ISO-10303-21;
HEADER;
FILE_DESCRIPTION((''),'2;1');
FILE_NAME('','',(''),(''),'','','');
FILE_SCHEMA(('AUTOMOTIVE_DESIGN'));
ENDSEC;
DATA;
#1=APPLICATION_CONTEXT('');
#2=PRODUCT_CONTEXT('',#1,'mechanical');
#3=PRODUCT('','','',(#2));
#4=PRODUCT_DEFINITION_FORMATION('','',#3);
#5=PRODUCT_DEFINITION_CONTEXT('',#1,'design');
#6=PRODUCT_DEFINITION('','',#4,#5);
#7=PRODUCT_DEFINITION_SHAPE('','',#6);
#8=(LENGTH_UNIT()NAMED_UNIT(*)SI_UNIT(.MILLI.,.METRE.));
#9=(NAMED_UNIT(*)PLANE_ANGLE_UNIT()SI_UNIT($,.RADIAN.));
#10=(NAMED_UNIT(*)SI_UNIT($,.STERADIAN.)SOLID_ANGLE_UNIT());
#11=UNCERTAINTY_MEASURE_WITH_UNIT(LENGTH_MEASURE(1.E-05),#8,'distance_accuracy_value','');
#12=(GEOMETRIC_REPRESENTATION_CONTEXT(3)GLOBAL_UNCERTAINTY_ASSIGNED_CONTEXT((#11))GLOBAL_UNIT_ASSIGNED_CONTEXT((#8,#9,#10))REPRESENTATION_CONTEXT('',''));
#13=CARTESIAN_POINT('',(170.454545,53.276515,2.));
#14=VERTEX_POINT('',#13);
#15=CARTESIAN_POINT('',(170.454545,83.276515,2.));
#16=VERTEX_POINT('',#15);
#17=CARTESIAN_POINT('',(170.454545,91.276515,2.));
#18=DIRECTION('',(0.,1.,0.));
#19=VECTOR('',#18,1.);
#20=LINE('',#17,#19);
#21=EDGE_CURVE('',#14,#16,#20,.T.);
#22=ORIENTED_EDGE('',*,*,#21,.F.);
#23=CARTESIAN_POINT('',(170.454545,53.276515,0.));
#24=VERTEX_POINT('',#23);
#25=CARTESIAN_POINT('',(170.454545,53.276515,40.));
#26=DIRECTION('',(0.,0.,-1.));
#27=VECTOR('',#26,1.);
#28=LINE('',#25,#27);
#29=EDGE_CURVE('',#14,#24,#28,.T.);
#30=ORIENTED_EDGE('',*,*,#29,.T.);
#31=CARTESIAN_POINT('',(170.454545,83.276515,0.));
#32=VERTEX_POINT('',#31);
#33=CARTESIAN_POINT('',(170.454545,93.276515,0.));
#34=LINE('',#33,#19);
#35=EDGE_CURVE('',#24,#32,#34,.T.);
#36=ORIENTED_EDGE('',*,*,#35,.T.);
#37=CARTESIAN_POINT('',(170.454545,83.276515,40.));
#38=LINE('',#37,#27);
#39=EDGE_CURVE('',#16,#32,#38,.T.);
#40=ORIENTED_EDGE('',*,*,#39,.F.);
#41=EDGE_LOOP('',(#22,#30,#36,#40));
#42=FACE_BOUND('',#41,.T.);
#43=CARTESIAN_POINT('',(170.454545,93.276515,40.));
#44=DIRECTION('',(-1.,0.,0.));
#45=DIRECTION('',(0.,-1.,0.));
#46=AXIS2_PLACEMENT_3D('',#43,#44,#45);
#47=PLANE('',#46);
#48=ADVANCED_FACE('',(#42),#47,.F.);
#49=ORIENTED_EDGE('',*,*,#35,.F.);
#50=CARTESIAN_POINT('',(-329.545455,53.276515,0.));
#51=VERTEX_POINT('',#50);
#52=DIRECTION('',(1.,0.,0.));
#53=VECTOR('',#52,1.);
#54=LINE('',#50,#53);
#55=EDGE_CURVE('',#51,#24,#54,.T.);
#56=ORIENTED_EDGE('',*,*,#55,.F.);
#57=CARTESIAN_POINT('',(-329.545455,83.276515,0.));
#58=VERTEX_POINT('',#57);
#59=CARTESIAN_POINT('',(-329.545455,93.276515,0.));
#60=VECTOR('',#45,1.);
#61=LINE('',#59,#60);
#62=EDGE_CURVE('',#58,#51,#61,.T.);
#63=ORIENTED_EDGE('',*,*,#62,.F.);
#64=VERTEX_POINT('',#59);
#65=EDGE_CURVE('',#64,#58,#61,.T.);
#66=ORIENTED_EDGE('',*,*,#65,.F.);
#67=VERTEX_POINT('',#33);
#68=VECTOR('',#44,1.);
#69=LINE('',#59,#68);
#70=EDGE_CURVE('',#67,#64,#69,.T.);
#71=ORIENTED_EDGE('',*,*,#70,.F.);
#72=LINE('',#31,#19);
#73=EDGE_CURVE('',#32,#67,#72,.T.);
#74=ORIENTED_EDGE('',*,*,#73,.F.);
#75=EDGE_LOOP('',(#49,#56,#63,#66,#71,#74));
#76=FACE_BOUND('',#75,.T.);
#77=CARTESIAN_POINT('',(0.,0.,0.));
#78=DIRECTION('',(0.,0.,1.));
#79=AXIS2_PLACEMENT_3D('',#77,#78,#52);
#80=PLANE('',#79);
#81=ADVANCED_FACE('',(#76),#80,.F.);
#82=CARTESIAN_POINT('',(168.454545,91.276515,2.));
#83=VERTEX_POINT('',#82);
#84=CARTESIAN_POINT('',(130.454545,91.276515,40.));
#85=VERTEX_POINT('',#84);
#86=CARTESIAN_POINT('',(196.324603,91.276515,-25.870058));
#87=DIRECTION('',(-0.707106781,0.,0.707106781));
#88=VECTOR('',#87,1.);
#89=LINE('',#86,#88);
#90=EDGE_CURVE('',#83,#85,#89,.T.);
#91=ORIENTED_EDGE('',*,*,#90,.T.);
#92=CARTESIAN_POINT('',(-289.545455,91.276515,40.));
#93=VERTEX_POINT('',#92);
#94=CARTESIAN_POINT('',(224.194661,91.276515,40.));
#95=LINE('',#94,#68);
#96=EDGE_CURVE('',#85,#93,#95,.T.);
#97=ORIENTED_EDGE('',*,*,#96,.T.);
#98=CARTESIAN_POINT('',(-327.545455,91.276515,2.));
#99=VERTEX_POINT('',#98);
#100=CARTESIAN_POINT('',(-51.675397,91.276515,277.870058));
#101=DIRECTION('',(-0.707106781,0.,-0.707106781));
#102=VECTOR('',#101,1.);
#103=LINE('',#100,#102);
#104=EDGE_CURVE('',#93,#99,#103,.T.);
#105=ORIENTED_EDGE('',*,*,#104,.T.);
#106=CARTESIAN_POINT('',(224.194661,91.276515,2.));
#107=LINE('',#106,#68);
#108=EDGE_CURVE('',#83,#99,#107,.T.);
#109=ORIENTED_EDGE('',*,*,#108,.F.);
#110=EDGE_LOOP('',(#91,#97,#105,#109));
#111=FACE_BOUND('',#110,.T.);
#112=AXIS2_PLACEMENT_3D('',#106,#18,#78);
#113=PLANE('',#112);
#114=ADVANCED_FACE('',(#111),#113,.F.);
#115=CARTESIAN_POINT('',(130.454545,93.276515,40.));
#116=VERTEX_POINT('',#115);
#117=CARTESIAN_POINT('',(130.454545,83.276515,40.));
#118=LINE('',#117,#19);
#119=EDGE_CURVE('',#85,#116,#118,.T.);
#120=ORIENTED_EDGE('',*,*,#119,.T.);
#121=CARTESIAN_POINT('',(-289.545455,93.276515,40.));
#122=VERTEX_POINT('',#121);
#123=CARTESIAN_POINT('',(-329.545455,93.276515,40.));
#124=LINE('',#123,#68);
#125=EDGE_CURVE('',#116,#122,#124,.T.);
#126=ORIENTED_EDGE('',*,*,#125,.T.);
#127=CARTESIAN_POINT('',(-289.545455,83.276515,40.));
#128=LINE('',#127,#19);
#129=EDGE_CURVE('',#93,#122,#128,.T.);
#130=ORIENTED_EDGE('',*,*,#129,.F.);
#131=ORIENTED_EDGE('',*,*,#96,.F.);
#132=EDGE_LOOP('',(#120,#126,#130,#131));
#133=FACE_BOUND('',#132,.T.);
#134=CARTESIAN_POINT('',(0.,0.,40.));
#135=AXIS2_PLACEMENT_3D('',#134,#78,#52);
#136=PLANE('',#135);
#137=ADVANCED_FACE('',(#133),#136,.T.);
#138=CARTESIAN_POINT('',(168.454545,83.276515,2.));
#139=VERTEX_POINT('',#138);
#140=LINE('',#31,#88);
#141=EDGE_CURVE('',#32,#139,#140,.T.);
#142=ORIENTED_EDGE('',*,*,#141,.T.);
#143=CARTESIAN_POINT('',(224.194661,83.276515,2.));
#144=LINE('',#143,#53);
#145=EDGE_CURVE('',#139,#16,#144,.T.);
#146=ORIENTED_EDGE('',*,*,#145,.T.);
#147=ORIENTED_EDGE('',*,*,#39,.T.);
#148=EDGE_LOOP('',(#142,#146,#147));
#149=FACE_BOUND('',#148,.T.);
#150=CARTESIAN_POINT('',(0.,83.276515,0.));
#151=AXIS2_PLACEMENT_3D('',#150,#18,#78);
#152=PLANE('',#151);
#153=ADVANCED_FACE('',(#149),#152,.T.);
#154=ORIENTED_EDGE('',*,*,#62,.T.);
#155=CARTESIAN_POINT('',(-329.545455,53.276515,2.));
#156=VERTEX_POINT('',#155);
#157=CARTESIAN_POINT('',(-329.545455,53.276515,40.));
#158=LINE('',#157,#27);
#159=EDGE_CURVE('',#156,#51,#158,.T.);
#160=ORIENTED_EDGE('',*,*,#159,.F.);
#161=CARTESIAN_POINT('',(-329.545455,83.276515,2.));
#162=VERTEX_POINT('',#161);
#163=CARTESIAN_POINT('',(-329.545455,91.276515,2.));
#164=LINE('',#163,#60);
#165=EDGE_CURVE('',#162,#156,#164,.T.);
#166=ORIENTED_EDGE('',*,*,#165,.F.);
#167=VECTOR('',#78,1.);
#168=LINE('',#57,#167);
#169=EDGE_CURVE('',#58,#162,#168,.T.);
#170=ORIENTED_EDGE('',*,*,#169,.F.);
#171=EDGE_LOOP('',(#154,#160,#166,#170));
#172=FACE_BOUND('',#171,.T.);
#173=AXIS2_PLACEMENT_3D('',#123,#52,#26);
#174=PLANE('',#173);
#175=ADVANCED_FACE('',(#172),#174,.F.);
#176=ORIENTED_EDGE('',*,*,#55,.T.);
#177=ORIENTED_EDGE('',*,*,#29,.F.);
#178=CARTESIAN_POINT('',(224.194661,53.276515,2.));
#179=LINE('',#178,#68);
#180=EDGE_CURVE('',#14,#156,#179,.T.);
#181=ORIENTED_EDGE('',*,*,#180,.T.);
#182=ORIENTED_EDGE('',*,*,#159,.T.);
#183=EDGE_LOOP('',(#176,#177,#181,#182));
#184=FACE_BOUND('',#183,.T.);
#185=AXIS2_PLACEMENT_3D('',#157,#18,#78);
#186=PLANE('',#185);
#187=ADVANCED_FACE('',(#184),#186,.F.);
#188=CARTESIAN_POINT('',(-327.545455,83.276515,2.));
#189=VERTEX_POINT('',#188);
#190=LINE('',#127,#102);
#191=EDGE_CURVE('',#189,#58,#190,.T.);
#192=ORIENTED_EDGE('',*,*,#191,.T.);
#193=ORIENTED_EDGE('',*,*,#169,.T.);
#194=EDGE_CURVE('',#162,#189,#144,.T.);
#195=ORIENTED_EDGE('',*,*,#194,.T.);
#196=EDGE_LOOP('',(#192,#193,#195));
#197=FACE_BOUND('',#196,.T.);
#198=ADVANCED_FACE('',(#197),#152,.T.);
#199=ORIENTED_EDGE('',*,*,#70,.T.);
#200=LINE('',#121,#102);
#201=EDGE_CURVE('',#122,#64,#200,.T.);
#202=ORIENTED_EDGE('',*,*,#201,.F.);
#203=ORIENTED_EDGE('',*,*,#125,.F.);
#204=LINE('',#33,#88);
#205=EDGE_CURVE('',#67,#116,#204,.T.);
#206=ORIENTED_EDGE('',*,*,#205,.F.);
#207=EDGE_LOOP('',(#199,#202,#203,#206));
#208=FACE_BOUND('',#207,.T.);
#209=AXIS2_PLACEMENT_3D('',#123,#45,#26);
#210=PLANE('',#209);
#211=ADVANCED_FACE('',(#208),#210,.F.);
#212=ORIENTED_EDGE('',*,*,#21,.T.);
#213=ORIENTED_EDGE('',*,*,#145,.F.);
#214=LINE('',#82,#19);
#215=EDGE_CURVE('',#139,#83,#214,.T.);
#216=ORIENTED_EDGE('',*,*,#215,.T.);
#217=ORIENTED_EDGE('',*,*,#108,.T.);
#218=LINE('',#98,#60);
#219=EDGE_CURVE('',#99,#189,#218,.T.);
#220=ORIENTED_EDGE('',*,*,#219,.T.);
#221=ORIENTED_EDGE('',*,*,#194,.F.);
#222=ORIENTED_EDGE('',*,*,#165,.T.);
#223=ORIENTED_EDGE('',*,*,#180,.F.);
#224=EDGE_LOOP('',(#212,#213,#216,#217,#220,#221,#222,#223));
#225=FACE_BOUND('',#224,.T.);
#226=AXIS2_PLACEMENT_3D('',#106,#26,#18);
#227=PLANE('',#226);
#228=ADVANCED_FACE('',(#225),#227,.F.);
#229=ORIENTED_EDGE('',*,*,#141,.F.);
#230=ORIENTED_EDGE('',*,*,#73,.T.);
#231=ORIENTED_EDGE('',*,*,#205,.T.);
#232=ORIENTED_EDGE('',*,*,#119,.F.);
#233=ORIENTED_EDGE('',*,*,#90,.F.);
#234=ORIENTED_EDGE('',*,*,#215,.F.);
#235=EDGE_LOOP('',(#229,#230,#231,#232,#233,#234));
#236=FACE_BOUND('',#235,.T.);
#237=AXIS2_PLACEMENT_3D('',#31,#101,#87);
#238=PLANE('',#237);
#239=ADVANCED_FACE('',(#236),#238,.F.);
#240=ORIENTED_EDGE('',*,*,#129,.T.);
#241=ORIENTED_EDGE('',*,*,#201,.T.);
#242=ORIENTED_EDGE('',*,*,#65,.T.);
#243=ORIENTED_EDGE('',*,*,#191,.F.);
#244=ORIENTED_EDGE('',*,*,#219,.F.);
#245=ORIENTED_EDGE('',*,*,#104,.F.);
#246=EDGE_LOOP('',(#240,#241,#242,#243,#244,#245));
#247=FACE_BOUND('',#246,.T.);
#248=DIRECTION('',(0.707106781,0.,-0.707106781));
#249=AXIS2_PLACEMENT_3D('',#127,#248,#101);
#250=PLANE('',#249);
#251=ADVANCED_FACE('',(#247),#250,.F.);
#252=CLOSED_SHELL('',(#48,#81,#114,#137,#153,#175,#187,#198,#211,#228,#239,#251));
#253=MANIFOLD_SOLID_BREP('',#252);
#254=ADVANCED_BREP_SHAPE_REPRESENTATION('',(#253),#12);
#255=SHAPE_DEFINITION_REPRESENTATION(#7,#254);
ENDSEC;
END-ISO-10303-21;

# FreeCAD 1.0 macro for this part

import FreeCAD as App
import Part
import Sketcher
Q = App.Units.Quantity

doc = App.newDocument("Part")
body = doc.addObject("PartDesign::Body", "Body")

# Sketch on XY plane
sketch1 = body.newObject("Sketcher::SketchObject", "Sketch")
sketch1.AttachmentSupport = (doc.getObject("XY_Plane"), [""])
sketch1.MapMode = "FlatFace"
sketch1.addGeometry([
    Part.LineSegment(App.Vector(-330, 93, 0), App.Vector(-330, 53, 0)),
    Part.LineSegment(App.Vector(-330, 53, 0), App.Vector(170, 53, 0)),
    Part.LineSegment(App.Vector(170, 53, 0), App.Vector(170, 93, 0)),
    Part.LineSegment(App.Vector(170, 93, 0), App.Vector(-330, 93, 0)),
], False)
sketch1.addConstraint([
    Sketcher.Constraint("Coincident", 0, 2, 1, 1),
    Sketcher.Constraint("Coincident", 1, 2, 2, 1),
    Sketcher.Constraint("Coincident", 2, 2, 3, 1),
    Sketcher.Constraint("Coincident", 3, 2, 0, 1),
    Sketcher.Constraint("Vertical", 0),
    Sketcher.Constraint("Horizontal", 1),
    Sketcher.Constraint("Vertical", 2),
    Sketcher.Constraint("Horizontal", 3),
    Sketcher.Constraint("DistanceX", 1, 1, 1, 2, Q("500 mm")),
    Sketcher.Constraint("DistanceY", 0, 2, 0, 1, Q("40 mm")),
    Sketcher.Constraint("DistanceX", 0, 2, -1, 1, Q("329.545455 mm")),
    Sketcher.Constraint("DistanceY", -1, 1, 0, 2, Q("53.276515 mm")),
])
pad1 = body.newObject("PartDesign::Pad", "Pad")
pad1.Profile = sketch1
pad1.Length = 40

# Sketch on YZ plane
sketch2 = body.newObject("Sketcher::SketchObject", "Sketch001")
sketch2.AttachmentSupport = (doc.getObject("YZ_Plane"), [""])
sketch2.MapMode = "FlatFace"
sketch2.AttachmentOffset = App.Placement(App.Vector(0, 0, -329.545455), App.Rotation())
sketch2.addGeometry([
    Part.LineSegment(App.Vector(91, 2, 0), App.Vector(53, 2, 0)),
    Part.LineSegment(App.Vector(53, 2, 0), App.Vector(53, 40, 0)),
    Part.LineSegment(App.Vector(53, 40, 0), App.Vector(91, 40, 0)),
    Part.LineSegment(App.Vector(91, 40, 0), App.Vector(91, 2, 0)),
], False)
sketch2.addConstraint([
    Sketcher.Constraint("Coincident", 0, 2, 1, 1),
    Sketcher.Constraint("Coincident", 1, 2, 2, 1),
    Sketcher.Constraint("Coincident", 2, 2, 3, 1),
    Sketcher.Constraint("Coincident", 3, 2, 0, 1),
    Sketcher.Constraint("Horizontal", 0),
    Sketcher.Constraint("Vertical", 1),
    Sketcher.Constraint("Horizontal", 2),
    Sketcher.Constraint("Vertical", 3),
    Sketcher.Constraint("Equal", 2, 1),
    Sketcher.Constraint("DistanceX", 0, 2, 0, 1, Q("38 mm")),
    Sketcher.Constraint("DistanceY", -1, 1, 0, 2, Q("2 mm")),
    Sketcher.Constraint("DistanceX", -1, 1, 0, 2, Q("53.276515 mm")),
])
pocket1 = body.newObject("PartDesign::Pocket", "Pocket")
pocket1.Profile = sketch2
pocket1.Length = 500
pocket1.Reversed = True

# Sketch on XZ plane
sketch3 = body.newObject("Sketcher::SketchObject", "Sketch002")
sketch3.AttachmentSupport = (doc.getObject("XZ_Plane"), [""])
sketch3.MapMode = "FlatFace"
sketch3.AttachmentOffset = App.Placement(App.Vector(0, 0, -93.276515), App.Rotation())
sketch3.addGeometry([
    Part.LineSegment(App.Vector(-330, 0, 0), App.Vector(-330, 40, 0)),  # 0
    Part.LineSegment(App.Vector(-330, 40, 0), App.Vector(-290, 40, 0)),  # 1
    Part.LineSegment(App.Vector(-290, 40, 0), App.Vector(-330, 0, 0)),  # 2
    Part.LineSegment(App.Vector(170, 40, 0), App.Vector(170, 0, 0)),  # 3
    Part.LineSegment(App.Vector(170, 0, 0), App.Vector(130, 40, 0)),  # 4
    Part.LineSegment(App.Vector(130, 40, 0), App.Vector(170, 40, 0)),  # 5
], False)
sketch3.addConstraint([
    Sketcher.Constraint("Coincident", 0, 2, 1, 1),
    Sketcher.Constraint("Coincident", 1, 2, 2, 1),
    Sketcher.Constraint("Coincident", 2, 2, 0, 1),
    Sketcher.Constraint("Coincident", 3, 2, 4, 1),
    Sketcher.Constraint("Coincident", 4, 2, 5, 1),
    Sketcher.Constraint("Coincident", 5, 2, 3, 1),
    Sketcher.Constraint("Vertical", 0),
    Sketcher.Constraint("Horizontal", 1),
    Sketcher.Constraint("Vertical", 3),
    Sketcher.Constraint("Horizontal", 5),
    Sketcher.Constraint("PointOnObject", 2, 2, -1),
    Sketcher.Constraint("PointOnObject", 3, 2, -1),
    Sketcher.Constraint("Perpendicular", 2, 4),
    Sketcher.Constraint("Horizontal", 1, 2, 4, 2),
    Sketcher.Constraint("Equal", 1, 5),
    Sketcher.Constraint("DistanceX", 1, 1, 1, 2, Q("40 mm")),
    Sketcher.Constraint("DistanceX", 1, 2, 3, 2, Q("460 mm")),
    Sketcher.Constraint("DistanceX", 0, 2, -1, 1, Q("329.545455 mm")),
])
pocket2 = body.newObject("PartDesign::Pocket", "Pocket001")
pocket2.Profile = sketch3
pocket2.Length = 10
pocket2.Reversed = True

doc.recompute()
